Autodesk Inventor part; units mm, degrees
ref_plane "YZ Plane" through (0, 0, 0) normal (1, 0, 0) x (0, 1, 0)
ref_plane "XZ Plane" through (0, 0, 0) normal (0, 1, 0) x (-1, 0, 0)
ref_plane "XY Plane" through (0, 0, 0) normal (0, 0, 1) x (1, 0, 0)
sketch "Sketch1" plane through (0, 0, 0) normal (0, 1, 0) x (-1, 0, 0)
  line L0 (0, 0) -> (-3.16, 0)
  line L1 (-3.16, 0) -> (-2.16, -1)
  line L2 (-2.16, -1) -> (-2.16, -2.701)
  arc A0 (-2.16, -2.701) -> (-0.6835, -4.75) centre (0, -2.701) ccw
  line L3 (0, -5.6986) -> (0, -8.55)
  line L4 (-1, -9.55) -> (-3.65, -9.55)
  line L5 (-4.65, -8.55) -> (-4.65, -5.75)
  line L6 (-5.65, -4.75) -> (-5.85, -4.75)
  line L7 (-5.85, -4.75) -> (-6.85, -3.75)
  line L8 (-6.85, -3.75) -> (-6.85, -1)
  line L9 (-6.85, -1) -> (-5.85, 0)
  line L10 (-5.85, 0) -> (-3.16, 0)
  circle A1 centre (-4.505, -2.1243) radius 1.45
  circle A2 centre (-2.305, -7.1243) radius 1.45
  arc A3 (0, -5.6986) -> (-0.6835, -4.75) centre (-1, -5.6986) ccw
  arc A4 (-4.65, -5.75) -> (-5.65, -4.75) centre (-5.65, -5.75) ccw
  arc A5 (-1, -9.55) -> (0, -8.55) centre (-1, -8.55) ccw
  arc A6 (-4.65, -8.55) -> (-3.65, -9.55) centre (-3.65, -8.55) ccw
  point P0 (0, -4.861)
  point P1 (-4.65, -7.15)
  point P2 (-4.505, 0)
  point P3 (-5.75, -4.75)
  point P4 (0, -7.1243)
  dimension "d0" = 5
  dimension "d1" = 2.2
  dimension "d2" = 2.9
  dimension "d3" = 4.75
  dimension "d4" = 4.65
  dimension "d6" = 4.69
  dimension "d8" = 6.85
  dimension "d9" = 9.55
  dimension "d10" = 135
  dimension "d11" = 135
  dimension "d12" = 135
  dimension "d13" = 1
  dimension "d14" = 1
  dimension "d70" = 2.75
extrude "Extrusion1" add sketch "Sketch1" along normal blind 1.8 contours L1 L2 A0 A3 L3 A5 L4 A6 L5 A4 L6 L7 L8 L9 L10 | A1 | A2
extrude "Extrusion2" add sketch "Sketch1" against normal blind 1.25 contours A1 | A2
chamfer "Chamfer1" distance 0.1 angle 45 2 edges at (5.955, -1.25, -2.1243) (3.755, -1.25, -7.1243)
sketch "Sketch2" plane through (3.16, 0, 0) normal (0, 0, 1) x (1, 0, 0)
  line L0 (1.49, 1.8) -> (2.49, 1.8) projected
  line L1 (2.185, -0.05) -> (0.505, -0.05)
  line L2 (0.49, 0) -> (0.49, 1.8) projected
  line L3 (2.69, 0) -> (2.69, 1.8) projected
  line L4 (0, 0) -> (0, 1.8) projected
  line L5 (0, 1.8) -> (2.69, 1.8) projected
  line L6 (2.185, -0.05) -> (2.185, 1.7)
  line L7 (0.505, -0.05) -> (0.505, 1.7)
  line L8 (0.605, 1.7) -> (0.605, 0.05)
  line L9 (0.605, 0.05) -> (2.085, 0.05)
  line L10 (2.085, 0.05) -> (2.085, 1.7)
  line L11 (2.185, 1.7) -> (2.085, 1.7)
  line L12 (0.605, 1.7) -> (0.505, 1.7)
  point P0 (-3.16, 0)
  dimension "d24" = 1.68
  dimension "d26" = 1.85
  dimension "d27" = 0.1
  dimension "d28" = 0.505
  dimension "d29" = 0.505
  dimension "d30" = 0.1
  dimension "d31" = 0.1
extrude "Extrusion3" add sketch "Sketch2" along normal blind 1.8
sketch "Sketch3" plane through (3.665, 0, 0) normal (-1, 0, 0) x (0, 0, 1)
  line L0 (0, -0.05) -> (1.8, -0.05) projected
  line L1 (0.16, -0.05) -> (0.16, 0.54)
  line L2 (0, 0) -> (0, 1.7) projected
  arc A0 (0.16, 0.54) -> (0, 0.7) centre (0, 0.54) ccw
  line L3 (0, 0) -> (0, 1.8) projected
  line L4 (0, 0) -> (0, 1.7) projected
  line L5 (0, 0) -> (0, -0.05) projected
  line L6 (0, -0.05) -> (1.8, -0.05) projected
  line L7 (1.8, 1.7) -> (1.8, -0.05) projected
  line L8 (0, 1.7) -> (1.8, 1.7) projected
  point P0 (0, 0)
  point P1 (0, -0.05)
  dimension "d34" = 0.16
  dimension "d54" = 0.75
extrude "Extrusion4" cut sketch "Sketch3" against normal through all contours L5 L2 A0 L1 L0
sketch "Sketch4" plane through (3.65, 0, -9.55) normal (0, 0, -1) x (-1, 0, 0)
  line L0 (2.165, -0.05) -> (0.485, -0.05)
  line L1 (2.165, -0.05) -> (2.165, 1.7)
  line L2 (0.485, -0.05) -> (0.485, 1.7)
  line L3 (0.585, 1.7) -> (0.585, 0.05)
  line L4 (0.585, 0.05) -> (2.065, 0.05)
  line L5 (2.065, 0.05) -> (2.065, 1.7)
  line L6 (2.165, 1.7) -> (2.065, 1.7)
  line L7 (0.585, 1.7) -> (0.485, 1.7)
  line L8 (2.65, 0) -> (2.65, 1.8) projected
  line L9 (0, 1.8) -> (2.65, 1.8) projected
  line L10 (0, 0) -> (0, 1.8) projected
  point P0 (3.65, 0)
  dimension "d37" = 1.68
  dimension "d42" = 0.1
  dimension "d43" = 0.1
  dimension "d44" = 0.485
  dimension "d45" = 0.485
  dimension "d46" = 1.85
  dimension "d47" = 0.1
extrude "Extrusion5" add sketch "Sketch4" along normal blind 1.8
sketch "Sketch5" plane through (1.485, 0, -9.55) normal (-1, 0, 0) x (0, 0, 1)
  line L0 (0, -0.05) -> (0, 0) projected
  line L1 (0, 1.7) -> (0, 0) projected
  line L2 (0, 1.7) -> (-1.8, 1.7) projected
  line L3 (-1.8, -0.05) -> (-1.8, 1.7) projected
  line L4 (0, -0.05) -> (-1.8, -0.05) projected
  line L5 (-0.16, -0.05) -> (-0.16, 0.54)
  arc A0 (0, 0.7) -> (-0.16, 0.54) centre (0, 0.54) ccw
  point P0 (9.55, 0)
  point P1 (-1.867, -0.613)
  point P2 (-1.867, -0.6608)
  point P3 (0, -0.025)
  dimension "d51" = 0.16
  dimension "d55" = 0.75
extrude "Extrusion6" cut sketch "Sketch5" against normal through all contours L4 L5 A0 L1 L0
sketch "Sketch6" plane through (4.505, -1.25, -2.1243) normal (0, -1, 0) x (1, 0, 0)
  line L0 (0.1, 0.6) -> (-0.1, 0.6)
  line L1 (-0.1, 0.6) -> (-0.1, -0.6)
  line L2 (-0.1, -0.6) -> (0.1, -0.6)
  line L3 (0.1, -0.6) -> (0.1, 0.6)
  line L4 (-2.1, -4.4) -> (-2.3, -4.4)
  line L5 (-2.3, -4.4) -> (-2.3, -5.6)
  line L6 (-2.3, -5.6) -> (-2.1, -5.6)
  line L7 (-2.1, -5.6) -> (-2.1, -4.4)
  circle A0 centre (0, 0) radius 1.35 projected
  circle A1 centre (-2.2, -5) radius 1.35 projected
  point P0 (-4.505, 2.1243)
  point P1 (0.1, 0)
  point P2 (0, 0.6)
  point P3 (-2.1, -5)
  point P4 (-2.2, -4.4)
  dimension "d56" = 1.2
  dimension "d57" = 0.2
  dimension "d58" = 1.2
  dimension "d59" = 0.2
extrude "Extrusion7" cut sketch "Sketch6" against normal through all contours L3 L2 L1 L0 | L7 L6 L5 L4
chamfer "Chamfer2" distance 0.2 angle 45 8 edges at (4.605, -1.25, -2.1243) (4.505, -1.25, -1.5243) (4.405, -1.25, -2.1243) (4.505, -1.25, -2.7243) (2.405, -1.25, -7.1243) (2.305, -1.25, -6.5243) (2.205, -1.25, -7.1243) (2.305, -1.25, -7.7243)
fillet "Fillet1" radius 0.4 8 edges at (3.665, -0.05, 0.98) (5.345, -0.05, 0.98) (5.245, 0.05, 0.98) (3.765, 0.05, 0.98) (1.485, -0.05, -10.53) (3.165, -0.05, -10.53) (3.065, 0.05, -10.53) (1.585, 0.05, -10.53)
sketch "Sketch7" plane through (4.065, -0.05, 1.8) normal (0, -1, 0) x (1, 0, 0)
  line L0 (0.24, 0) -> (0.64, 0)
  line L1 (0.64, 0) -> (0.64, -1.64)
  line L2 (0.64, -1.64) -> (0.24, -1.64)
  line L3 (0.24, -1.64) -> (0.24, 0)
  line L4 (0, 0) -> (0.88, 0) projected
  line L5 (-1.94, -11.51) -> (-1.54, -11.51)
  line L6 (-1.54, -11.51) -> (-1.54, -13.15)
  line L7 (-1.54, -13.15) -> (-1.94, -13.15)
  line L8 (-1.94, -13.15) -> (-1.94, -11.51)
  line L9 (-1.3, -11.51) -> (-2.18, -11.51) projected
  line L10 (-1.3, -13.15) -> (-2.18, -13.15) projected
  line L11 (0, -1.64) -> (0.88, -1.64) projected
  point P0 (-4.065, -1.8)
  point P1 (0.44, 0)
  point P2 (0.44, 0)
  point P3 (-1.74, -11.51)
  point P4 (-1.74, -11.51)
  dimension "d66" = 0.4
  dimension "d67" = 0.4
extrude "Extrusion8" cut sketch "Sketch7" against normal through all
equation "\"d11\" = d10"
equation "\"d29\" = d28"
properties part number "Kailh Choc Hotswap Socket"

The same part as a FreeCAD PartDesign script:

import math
import FreeCAD as App
import Part
import Sketcher

V = App.Vector


def edges_at(feature, points):
    """Names of the edges that pass closest to the given points."""
    edges = feature.Shape.Edges
    near = lambda p: min(range(len(edges)), key=lambda i: edges[i].distToShape(Part.Vertex(*p))[0])
    return sorted({f"Edge{near(p) + 1}" for p in points})


def add_polygon(sketch, points):
    """Adds a closed chain of lines whose ends are joined by coincident constraints."""
    first, n = sketch.GeometryCount, len(points)
    for a, b in zip(points, points[1:] + points[:1]):
        sketch.addGeometry(Part.LineSegment(App.Vector(*a, 0), App.Vector(*b, 0)), False)
    for i in range(n):
        sketch.addConstraint(Sketcher.Constraint("Coincident", first + i, 2, first + (i + 1) % n, 1))

doc = App.newDocument("Part")
body = doc.addObject("PartDesign::Body", "Body")

# Sketch on XZ plane
sketch1 = body.newObject("Sketcher::SketchObject", "Sketch")
sketch1.AttachmentSupport = (doc.getObject("XZ_Plane"), [""])
sketch1.MapMode = "FlatFace"
sketch1.addGeometry([
    Part.LineSegment(V(2.16, -1, 0), V(3.16, 0, 0)),  # 0
    Part.LineSegment(V(3.16, 0, 0), V(5.85, 0, 0)),  # 1
    Part.LineSegment(V(5.85, 0, 0), V(6.85, -1, 0)),  # 2
    Part.LineSegment(V(6.85, -1, 0), V(6.85, -3.75, 0)),  # 3
    Part.LineSegment(V(6.85, -3.75, 0), V(5.85, -4.75, 0)),  # 4
    Part.LineSegment(V(5.85, -4.75, 0), V(5.65, -4.75, 0)),  # 5
    Part.ArcOfCircle(Part.Circle(V(5.65, -5.75, 0), V(0, 0, 1), 1), math.radians(90), math.radians(180)),  # 6
    Part.LineSegment(V(4.65, -5.75, 0), V(4.65, -8.55, 0)),  # 7
    Part.ArcOfCircle(Part.Circle(V(3.65, -8.55, 0), V(0, 0, 1), 1), math.radians(-90), math.radians(0)),  # 8
    Part.LineSegment(V(3.65, -9.55, 0), V(1, -9.55, 0)),  # 9
    Part.ArcOfCircle(Part.Circle(V(1, -8.55, 0), V(0, 0, 1), 1), math.radians(180), math.radians(270)),  # 10
    Part.LineSegment(V(0, -8.55, 0), V(0, -5.7, 0)),  # 11
    Part.ArcOfCircle(Part.Circle(V(1, -5.7, 0), V(0, 0, 1), 1), math.radians(108), math.radians(180)),  # 12
    Part.ArcOfCircle(Part.Circle(V(0, -2.7, 0), V(0, 0, 1), 2.16), math.radians(-72), math.radians(0)),  # 13
    Part.LineSegment(V(2.16, -2.7, 0), V(2.16, -1, 0)),  # 14
], False)
sketch1.addConstraint([
    Sketcher.Constraint("Coincident", 0, 2, 1, 1),
    Sketcher.Constraint("Coincident", 1, 2, 2, 1),
    Sketcher.Constraint("Coincident", 2, 2, 3, 1),
    Sketcher.Constraint("Coincident", 3, 2, 4, 1),
    Sketcher.Constraint("Coincident", 4, 2, 5, 1),
    Sketcher.Constraint("Tangent", 5, 2, 6, 1),
    Sketcher.Constraint("Tangent", 6, 2, 7, 1),
    Sketcher.Constraint("Tangent", 7, 2, 8, 2),
    Sketcher.Constraint("Tangent", 8, 1, 9, 1),
    Sketcher.Constraint("Tangent", 9, 2, 10, 2),
    Sketcher.Constraint("Tangent", 10, 1, 11, 1),
    Sketcher.Constraint("Tangent", 11, 2, 12, 2),
    Sketcher.Constraint("Tangent", 12, 1, 13, 1),
    Sketcher.Constraint("Tangent", 13, 2, 14, 1),
    Sketcher.Constraint("Coincident", 14, 2, 0, 1),
    Sketcher.Constraint("Horizontal", 1),
    Sketcher.Constraint("Vertical", 3),
    Sketcher.Constraint("Horizontal", 5),
    Sketcher.Constraint("Vertical", 7),
    Sketcher.Constraint("Horizontal", 9),
    Sketcher.Constraint("Vertical", 11),
    Sketcher.Constraint("Vertical", 14),
    Sketcher.Constraint("Equal", 6, 8),
    Sketcher.Constraint("Equal", 8, 10),
    Sketcher.Constraint("Equal", 10, 12),
    Sketcher.Constraint("PointOnObject", 13, 3, -2),
    Sketcher.Constraint("PointOnObject", 0, 2, -1),
    Sketcher.Constraint("PointOnObject", 10, 1, -2),
    Sketcher.Constraint("Perpendicular", 0, 2),
    Sketcher.Constraint("Perpendicular", 2, 4),
    Sketcher.Constraint("Horizontal", 5, 2, 12, 1),
    Sketcher.Constraint("Horizontal", 2, 2, 14, 2),
    Sketcher.Constraint("Vertical", 1, 2, 4, 2),
    Sketcher.Constraint("Equal", 0, 2),
    Sketcher.Constraint("Radius", 6, 1.0),
    Sketcher.Constraint("DistanceY", 2, 2, -1, 1, 1.0),
    Sketcher.Constraint("DistanceY", 3, 2, 3, 1, 2.75),
    Sketcher.Constraint("DistanceX", 8, 3, 1, 2, 2.2),
    Sketcher.Constraint("DistanceX", -1, 1, 2, 2, 6.85),
    Sketcher.Constraint("DistanceY", 8, 1, -1, 1, 9.55),
    Sketcher.Constraint("Radius", 13, 2.16),
])
pad1 = body.newObject("PartDesign::Pad", "Pad")
pad1.Profile = sketch1
pad1.Length = 1.8
pad1.Reversed = True

# Sketch on XZ plane
sketch2 = body.newObject("Sketcher::SketchObject", "Sketch001")
sketch2.AttachmentSupport = (doc.getObject("XZ_Plane"), [""])
sketch2.MapMode = "FlatFace"
sketch2.addGeometry([
    Part.Circle(V(4.5, -2.1, 0), V(0, 0, 1), 1.4),
    Part.Circle(V(2.3, -7.1, 0), V(0, 0, 1), 1.4),
], False)
sketch2.addConstraint([
    Sketcher.Constraint("Equal", 0, 1),
    Sketcher.Constraint("Diameter", 0, 2.9),
    Sketcher.Constraint("DistanceY", 1, 3, 0, 3, 5.0),
    Sketcher.Constraint("DistanceX", 1, 3, 0, 3, 2.2),
    Sketcher.Constraint("DistanceX", -1, 1, 0, 3, 4.505),
    Sketcher.Constraint("DistanceY", 0, 3, -1, 1, 2.1243),
])
pad2 = body.newObject("PartDesign::Pad", "Pad001")
pad2.Profile = sketch2
pad2.Length = 1.25
doc.recompute()

chamfer = body.newObject("PartDesign::Chamfer", "Chamfer")
chamfer.Base = (pad2, edges_at(pad2, [(5.955, -1.25, -2.124), (3.755, -1.25, -7.124)]))
chamfer.Size = 0.1

# Sketch on XY plane
sketch3 = body.newObject("Sketcher::SketchObject", "Sketch002")
sketch3.AttachmentSupport = (doc.getObject("XY_Plane"), [""])
sketch3.MapMode = "FlatFace"
add_polygon(sketch3, [(3.67, -0.05), (5.34, -0.05), (5.34, 1.7), (5.25, 1.7), (5.25, 0.05), (3.77, 0.05), (3.77, 1.7), (3.67, 1.7)])  # lines 0-7
sketch3.addConstraint([
    Sketcher.Constraint("Horizontal", 0),
    Sketcher.Constraint("Vertical", 1),
    Sketcher.Constraint("Horizontal", 2),
    Sketcher.Constraint("Vertical", 3),
    Sketcher.Constraint("Horizontal", 4),
    Sketcher.Constraint("Vertical", 5),
    Sketcher.Constraint("Horizontal", 6),
    Sketcher.Constraint("Vertical", 7),
    Sketcher.Constraint("Horizontal", 2, 2, 5, 2),
    Sketcher.Constraint("Equal", 2, 6),
    Sketcher.Constraint("DistanceX", 2, 2, 2, 1, 0.1),
    Sketcher.Constraint("DistanceX", 0, 1, 0, 2, 1.68),
    Sketcher.Constraint("DistanceY", 0, 2, 3, 2, 0.1),
    Sketcher.Constraint("DistanceY", 1, 1, 1, 2, 1.75),
    Sketcher.Constraint("DistanceY", -1, 1, 1, 2, 1.7),
    Sketcher.Constraint("DistanceX", -1, 1, 0, 2, 5.345),
])
pad3 = body.newObject("PartDesign::Pad", "Pad002")
pad3.Profile = sketch3
pad3.Length = 1.8

# Sketch on YZ plane
sketch4 = body.newObject("Sketcher::SketchObject", "Sketch003")
sketch4.AttachmentSupport = (doc.getObject("YZ_Plane"), [""])
sketch4.MapMode = "FlatFace"
sketch4.AttachmentOffset = App.Placement(V(0, 0, 3.665), App.Rotation())
sketch4.addGeometry([
    Part.LineSegment(V(0.7, 0, 0), V(-0.05, 0, 0)),
    Part.LineSegment(V(-0.05, 0, 0), V(-0.05, 0.16, 0)),
    Part.LineSegment(V(-0.05, 0.16, 0), V(0.54, 0.16, 0)),
    Part.ArcOfCircle(Part.Circle(V(0.54, 0, 0), V(0, 0, 1), 0.16), math.radians(0), math.radians(90)),
], False)
sketch4.addConstraint([
    Sketcher.Constraint("Coincident", 0, 2, 1, 1),
    Sketcher.Constraint("Coincident", 1, 2, 2, 1),
    Sketcher.Constraint("Tangent", 2, 2, 3, 2),
    Sketcher.Constraint("Coincident", 3, 1, 0, 1),
    Sketcher.Constraint("Horizontal", 0),
    Sketcher.Constraint("Vertical", 1),
    Sketcher.Constraint("Horizontal", 2),
    Sketcher.Constraint("PointOnObject", 3, 3, -1),
    Sketcher.Constraint("PointOnObject", 0, 2, -1),
    Sketcher.Constraint("Radius", 3, 0.16),
    Sketcher.Constraint("DistanceX", 0, 2, 0, 1, 0.75),
    Sketcher.Constraint("DistanceX", -1, 1, 3, 1, 0.7),
])
pocket1 = body.newObject("PartDesign::Pocket", "Pocket")
pocket1.Profile = sketch4
pocket1.Type = "ThroughAll"
pocket1.Reversed = True

# Sketch on XY plane
sketch5 = body.newObject("Sketcher::SketchObject", "Sketch004")
sketch5.AttachmentSupport = (doc.getObject("XY_Plane"), [""])
sketch5.MapMode = "FlatFace"
sketch5.AttachmentOffset = App.Placement(V(0, 0, -9.55), App.Rotation())
add_polygon(sketch5, [(3.17, -0.05), (1.49, -0.05), (1.49, 1.7), (1.58, 1.7), (1.58, 0.05), (3.06, 0.05), (3.06, 1.7), (3.17, 1.7)])  # lines 0-7
sketch5.addConstraint([
    Sketcher.Constraint("Horizontal", 0),
    Sketcher.Constraint("Vertical", 1),
    Sketcher.Constraint("Horizontal", 2),
    Sketcher.Constraint("Vertical", 3),
    Sketcher.Constraint("Horizontal", 4),
    Sketcher.Constraint("Vertical", 5),
    Sketcher.Constraint("Horizontal", 6),
    Sketcher.Constraint("Vertical", 7),
    Sketcher.Constraint("Horizontal", 2, 2, 5, 2),
    Sketcher.Constraint("Equal", 2, 6),
    Sketcher.Constraint("DistanceX", 2, 1, 2, 2, 0.1),
    Sketcher.Constraint("DistanceX", 0, 2, 0, 1, 1.68),
    Sketcher.Constraint("DistanceY", 0, 2, 3, 2, 0.1),
    Sketcher.Constraint("DistanceY", 1, 1, 1, 2, 1.75),
    Sketcher.Constraint("DistanceY", -1, 1, 1, 2, 1.7),
    Sketcher.Constraint("DistanceX", -1, 1, 0, 2, 1.485),
])
pad4 = body.newObject("PartDesign::Pad", "Pad003")
pad4.Profile = sketch5
pad4.Length = 1.8
pad4.Reversed = True

# Sketch on YZ plane
sketch6 = body.newObject("Sketcher::SketchObject", "Sketch005")
sketch6.AttachmentSupport = (doc.getObject("YZ_Plane"), [""])
sketch6.MapMode = "FlatFace"
sketch6.AttachmentOffset = App.Placement(V(0, 0, 1.485), App.Rotation())
sketch6.addGeometry([
    Part.LineSegment(V(-0.05, -9.71, 0), V(-0.05, -9.55, 0)),
    Part.LineSegment(V(-0.05, -9.55, 0), V(0.7, -9.55, 0)),
    Part.ArcOfCircle(Part.Circle(V(0.54, -9.55, 0), V(0, 0, 1), 0.16), math.radians(-90), math.radians(0)),
    Part.LineSegment(V(0.54, -9.71, 0), V(-0.05, -9.71, 0)),
], False)
sketch6.addConstraint([
    Sketcher.Constraint("Coincident", 0, 2, 1, 1),
    Sketcher.Constraint("Coincident", 1, 2, 2, 2),
    Sketcher.Constraint("Tangent", 2, 1, 3, 1),
    Sketcher.Constraint("Coincident", 3, 2, 0, 1),
    Sketcher.Constraint("Vertical", 0),
    Sketcher.Constraint("Horizontal", 1),
    Sketcher.Constraint("Horizontal", 3),
    Sketcher.Constraint("Horizontal", 2, 3, 0, 2),
    Sketcher.Constraint("Radius", 2, 0.16),
    Sketcher.Constraint("DistanceX", 1, 1, 1, 2, 0.75),
    Sketcher.Constraint("DistanceX", -1, 1, 1, 2, 0.7),
    Sketcher.Constraint("DistanceY", 2, 3, -1, 1, 9.55),
])
pocket2 = body.newObject("PartDesign::Pocket", "Pocket001")
pocket2.Profile = sketch6
pocket2.Type = "ThroughAll"
pocket2.Reversed = True

# Sketch on XZ plane
sketch7 = body.newObject("Sketcher::SketchObject", "Sketch006")
sketch7.AttachmentSupport = (doc.getObject("XZ_Plane"), [""])
sketch7.MapMode = "FlatFace"
sketch7.AttachmentOffset = App.Placement(V(0, 0, 1.25), App.Rotation())
add_polygon(sketch7, [(4.61, -2.72), (4.61, -1.52), (4.41, -1.52), (4.41, -2.72)])  # lines 0-3
add_polygon(sketch7, [(2.4, -7.72), (2.4, -6.52), (2.21, -6.52), (2.21, -7.72)])  # lines 4-7
sketch7.addConstraint([
    Sketcher.Constraint("Vertical", 0),
    Sketcher.Constraint("Horizontal", 1),
    Sketcher.Constraint("Vertical", 2),
    Sketcher.Constraint("Horizontal", 3),
    Sketcher.Constraint("Vertical", 4),
    Sketcher.Constraint("Horizontal", 5),
    Sketcher.Constraint("Vertical", 6),
    Sketcher.Constraint("Horizontal", 7),
    Sketcher.Constraint("Equal", 3, 5),
    Sketcher.Constraint("Equal", 2, 4),
    Sketcher.Constraint("DistanceX", 1, 2, 1, 1, 0.2),
    Sketcher.Constraint("DistanceY", 0, 1, 0, 2, 1.2),
    Sketcher.Constraint("DistanceX", 4, 2, 2, 2, 2.0),
    Sketcher.Constraint("DistanceY", 4, 2, 1, 2, 5.0),
    Sketcher.Constraint("DistanceX", -1, 1, 0, 2, 4.605),
    Sketcher.Constraint("DistanceY", 0, 2, -1, 1, 1.5243),
])
pocket3 = body.newObject("PartDesign::Pocket", "Pocket002")
pocket3.Profile = sketch7
pocket3.Type = "ThroughAll"
doc.recompute()

chamfer2 = body.newObject("PartDesign::Chamfer", "Chamfer001")
chamfer2.Base = (pocket3, edges_at(pocket3, [
    (4.605, -1.25, -2.124),
    (4.505, -1.25, -1.524),
    (4.405, -1.25, -2.124),
    (4.505, -1.25, -2.724),
    (2.405, -1.25, -7.124),
    (2.305, -1.25, -6.524),
    (2.205, -1.25, -7.124),
    (2.305, -1.25, -7.724),
]))
chamfer2.Size = 0.2
doc.recompute()

fillet = body.newObject("PartDesign::Fillet", "Fillet")
fillet.Base = (chamfer2, edges_at(chamfer2, [
    (3.665, -0.05, 0.98),
    (5.345, -0.05, 0.98),
    (5.245, 0.05, 0.98),
    (3.765, 0.05, 0.98),
    (1.485, -0.05, -10.53),
    (3.165, -0.05, -10.53),
    (3.065, 0.05, -10.53),
    (1.585, 0.05, -10.53),
]))
fillet.Radius = 0.4

# Sketch on XZ plane
sketch8 = body.newObject("Sketcher::SketchObject", "Sketch007")
sketch8.AttachmentSupport = (doc.getObject("XZ_Plane"), [""])
sketch8.MapMode = "FlatFace"
sketch8.AttachmentOffset = App.Placement(V(0, 0, 0.05), App.Rotation())
add_polygon(sketch8, [(4.71, 1.8), (4.3, 1.8), (4.3, 0.16), (4.71, 0.16)])  # lines 0-3
add_polygon(sketch8, [(2.52, -9.71), (2.12, -9.71), (2.12, -11.35), (2.52, -11.35)])  # lines 4-7
sketch8.addConstraint([
    Sketcher.Constraint("Horizontal", 0),
    Sketcher.Constraint("Vertical", 1),
    Sketcher.Constraint("Horizontal", 2),
    Sketcher.Constraint("Vertical", 3),
    Sketcher.Constraint("Horizontal", 4),
    Sketcher.Constraint("Vertical", 5),
    Sketcher.Constraint("Horizontal", 6),
    Sketcher.Constraint("Vertical", 7),
    Sketcher.Constraint("Equal", 2, 4),
    Sketcher.Constraint("Equal", 3, 5),
    Sketcher.Constraint("DistanceX", 0, 2, 0, 1, 0.4),
    Sketcher.Constraint("DistanceY", 1, 2, 1, 1, 1.64),
    Sketcher.Constraint("DistanceY", -1, 1, 0, 2, 1.8),
    Sketcher.Constraint("DistanceY", 4, 2, -1, 1, 9.71),
    Sketcher.Constraint("DistanceX", 4, 2, 1, 2, 2.18),
    Sketcher.Constraint("DistanceX", -1, 1, 0, 2, 4.305),
])
pocket4 = body.newObject("PartDesign::Pocket", "Pocket003")
pocket4.Profile = sketch8
pocket4.Type = "ThroughAll"

doc.recompute()
